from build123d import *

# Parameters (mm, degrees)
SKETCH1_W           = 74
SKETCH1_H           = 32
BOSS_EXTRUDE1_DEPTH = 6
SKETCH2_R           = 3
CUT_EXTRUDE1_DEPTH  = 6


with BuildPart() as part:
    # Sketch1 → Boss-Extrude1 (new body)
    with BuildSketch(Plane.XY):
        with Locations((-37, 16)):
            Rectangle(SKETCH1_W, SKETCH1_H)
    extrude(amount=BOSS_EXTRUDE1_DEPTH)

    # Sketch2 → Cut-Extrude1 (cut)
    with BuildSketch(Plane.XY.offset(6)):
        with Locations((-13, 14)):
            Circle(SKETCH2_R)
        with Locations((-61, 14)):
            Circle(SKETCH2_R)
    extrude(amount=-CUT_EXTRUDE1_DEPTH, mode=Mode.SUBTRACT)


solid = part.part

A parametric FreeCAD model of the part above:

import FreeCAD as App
import Part
import Sketcher
Q = App.Units.Quantity

doc = App.newDocument("Part")
body = doc.addObject("PartDesign::Body", "Body")

sketch1 = body.newObject("Sketcher::SketchObject", "Sketch")
sketch1.AttachmentSupport = (doc.getObject("XY_Plane"), [""])
sketch1.MapMode = "FlatFace"
sketch1.addGeometry(Part.LineSegment(App.Vector(-74, 32, 0), App.Vector(-74, 0, 0)), False)
sketch1.addGeometry(Part.LineSegment(App.Vector(-74, 0, 0), App.Vector(0, 0, 0)), False)
sketch1.addGeometry(Part.LineSegment(App.Vector(0, 0, 0), App.Vector(0, 32, 0)), False)
sketch1.addGeometry(Part.LineSegment(App.Vector(0, 32, 0), App.Vector(-74, 32, 0)), False)
sketch1.addConstraint(Sketcher.Constraint("Coincident", 0, 2, 1, 1))
sketch1.addConstraint(Sketcher.Constraint("Coincident", 1, 2, 2, 1))
sketch1.addConstraint(Sketcher.Constraint("Coincident", 2, 2, 3, 1))
sketch1.addConstraint(Sketcher.Constraint("Coincident", 3, 2, 0, 1))
sketch1.addConstraint(Sketcher.Constraint("Vertical", 0))
sketch1.addConstraint(Sketcher.Constraint("Horizontal", 1))
sketch1.addConstraint(Sketcher.Constraint("Vertical", 2))
sketch1.addConstraint(Sketcher.Constraint("Horizontal", 3))
sketch1.addConstraint(Sketcher.Constraint("Coincident", 1, 2, -1, 1))
sketch1.addConstraint(Sketcher.Constraint("DistanceX", 1, 1, 1, 2, Q("74 mm")))
sketch1.addConstraint(Sketcher.Constraint("DistanceY", 0, 2, 0, 1, Q("32 mm")))
pad1 = body.newObject("PartDesign::Pad", "Pad")
pad1.Profile = sketch1
pad1.Length = 6

sketch2 = body.newObject("Sketcher::SketchObject", "Sketch001")
sketch2.AttachmentSupport = (doc.getObject("XY_Plane"), [""])
sketch2.MapMode = "FlatFace"
sketch2.AttachmentOffset = App.Placement(App.Vector(0, 0, 6), App.Rotation())
sketch2.addGeometry(Part.Circle(App.Vector(-13, 14, 0), App.Vector(0, 0, 1), 3), False)
sketch2.addGeometry(Part.Circle(App.Vector(-61, 14, 0), App.Vector(0, 0, 1), 3), False)
sketch2.addConstraint(Sketcher.Constraint("Equal", 0, 1))
sketch2.addConstraint(Sketcher.Constraint("Horizontal", 0, 3, 1, 3))
sketch2.addConstraint(Sketcher.Constraint("Diameter", 0, Q("6 mm")))
sketch2.addConstraint(Sketcher.Constraint("DistanceX", 0, 3, -1, 1, Q("13 mm")))
sketch2.addConstraint(Sketcher.Constraint("DistanceY", -1, 1, 0, 3, Q("14 mm")))
sketch2.addConstraint(Sketcher.Constraint("DistanceX", 1, 3, -1, 1, Q("61 mm")))
pocket1 = body.newObject("PartDesign::Pocket", "Pocket")
pocket1.Profile = sketch2
pocket1.Length = 6

doc.recompute()
